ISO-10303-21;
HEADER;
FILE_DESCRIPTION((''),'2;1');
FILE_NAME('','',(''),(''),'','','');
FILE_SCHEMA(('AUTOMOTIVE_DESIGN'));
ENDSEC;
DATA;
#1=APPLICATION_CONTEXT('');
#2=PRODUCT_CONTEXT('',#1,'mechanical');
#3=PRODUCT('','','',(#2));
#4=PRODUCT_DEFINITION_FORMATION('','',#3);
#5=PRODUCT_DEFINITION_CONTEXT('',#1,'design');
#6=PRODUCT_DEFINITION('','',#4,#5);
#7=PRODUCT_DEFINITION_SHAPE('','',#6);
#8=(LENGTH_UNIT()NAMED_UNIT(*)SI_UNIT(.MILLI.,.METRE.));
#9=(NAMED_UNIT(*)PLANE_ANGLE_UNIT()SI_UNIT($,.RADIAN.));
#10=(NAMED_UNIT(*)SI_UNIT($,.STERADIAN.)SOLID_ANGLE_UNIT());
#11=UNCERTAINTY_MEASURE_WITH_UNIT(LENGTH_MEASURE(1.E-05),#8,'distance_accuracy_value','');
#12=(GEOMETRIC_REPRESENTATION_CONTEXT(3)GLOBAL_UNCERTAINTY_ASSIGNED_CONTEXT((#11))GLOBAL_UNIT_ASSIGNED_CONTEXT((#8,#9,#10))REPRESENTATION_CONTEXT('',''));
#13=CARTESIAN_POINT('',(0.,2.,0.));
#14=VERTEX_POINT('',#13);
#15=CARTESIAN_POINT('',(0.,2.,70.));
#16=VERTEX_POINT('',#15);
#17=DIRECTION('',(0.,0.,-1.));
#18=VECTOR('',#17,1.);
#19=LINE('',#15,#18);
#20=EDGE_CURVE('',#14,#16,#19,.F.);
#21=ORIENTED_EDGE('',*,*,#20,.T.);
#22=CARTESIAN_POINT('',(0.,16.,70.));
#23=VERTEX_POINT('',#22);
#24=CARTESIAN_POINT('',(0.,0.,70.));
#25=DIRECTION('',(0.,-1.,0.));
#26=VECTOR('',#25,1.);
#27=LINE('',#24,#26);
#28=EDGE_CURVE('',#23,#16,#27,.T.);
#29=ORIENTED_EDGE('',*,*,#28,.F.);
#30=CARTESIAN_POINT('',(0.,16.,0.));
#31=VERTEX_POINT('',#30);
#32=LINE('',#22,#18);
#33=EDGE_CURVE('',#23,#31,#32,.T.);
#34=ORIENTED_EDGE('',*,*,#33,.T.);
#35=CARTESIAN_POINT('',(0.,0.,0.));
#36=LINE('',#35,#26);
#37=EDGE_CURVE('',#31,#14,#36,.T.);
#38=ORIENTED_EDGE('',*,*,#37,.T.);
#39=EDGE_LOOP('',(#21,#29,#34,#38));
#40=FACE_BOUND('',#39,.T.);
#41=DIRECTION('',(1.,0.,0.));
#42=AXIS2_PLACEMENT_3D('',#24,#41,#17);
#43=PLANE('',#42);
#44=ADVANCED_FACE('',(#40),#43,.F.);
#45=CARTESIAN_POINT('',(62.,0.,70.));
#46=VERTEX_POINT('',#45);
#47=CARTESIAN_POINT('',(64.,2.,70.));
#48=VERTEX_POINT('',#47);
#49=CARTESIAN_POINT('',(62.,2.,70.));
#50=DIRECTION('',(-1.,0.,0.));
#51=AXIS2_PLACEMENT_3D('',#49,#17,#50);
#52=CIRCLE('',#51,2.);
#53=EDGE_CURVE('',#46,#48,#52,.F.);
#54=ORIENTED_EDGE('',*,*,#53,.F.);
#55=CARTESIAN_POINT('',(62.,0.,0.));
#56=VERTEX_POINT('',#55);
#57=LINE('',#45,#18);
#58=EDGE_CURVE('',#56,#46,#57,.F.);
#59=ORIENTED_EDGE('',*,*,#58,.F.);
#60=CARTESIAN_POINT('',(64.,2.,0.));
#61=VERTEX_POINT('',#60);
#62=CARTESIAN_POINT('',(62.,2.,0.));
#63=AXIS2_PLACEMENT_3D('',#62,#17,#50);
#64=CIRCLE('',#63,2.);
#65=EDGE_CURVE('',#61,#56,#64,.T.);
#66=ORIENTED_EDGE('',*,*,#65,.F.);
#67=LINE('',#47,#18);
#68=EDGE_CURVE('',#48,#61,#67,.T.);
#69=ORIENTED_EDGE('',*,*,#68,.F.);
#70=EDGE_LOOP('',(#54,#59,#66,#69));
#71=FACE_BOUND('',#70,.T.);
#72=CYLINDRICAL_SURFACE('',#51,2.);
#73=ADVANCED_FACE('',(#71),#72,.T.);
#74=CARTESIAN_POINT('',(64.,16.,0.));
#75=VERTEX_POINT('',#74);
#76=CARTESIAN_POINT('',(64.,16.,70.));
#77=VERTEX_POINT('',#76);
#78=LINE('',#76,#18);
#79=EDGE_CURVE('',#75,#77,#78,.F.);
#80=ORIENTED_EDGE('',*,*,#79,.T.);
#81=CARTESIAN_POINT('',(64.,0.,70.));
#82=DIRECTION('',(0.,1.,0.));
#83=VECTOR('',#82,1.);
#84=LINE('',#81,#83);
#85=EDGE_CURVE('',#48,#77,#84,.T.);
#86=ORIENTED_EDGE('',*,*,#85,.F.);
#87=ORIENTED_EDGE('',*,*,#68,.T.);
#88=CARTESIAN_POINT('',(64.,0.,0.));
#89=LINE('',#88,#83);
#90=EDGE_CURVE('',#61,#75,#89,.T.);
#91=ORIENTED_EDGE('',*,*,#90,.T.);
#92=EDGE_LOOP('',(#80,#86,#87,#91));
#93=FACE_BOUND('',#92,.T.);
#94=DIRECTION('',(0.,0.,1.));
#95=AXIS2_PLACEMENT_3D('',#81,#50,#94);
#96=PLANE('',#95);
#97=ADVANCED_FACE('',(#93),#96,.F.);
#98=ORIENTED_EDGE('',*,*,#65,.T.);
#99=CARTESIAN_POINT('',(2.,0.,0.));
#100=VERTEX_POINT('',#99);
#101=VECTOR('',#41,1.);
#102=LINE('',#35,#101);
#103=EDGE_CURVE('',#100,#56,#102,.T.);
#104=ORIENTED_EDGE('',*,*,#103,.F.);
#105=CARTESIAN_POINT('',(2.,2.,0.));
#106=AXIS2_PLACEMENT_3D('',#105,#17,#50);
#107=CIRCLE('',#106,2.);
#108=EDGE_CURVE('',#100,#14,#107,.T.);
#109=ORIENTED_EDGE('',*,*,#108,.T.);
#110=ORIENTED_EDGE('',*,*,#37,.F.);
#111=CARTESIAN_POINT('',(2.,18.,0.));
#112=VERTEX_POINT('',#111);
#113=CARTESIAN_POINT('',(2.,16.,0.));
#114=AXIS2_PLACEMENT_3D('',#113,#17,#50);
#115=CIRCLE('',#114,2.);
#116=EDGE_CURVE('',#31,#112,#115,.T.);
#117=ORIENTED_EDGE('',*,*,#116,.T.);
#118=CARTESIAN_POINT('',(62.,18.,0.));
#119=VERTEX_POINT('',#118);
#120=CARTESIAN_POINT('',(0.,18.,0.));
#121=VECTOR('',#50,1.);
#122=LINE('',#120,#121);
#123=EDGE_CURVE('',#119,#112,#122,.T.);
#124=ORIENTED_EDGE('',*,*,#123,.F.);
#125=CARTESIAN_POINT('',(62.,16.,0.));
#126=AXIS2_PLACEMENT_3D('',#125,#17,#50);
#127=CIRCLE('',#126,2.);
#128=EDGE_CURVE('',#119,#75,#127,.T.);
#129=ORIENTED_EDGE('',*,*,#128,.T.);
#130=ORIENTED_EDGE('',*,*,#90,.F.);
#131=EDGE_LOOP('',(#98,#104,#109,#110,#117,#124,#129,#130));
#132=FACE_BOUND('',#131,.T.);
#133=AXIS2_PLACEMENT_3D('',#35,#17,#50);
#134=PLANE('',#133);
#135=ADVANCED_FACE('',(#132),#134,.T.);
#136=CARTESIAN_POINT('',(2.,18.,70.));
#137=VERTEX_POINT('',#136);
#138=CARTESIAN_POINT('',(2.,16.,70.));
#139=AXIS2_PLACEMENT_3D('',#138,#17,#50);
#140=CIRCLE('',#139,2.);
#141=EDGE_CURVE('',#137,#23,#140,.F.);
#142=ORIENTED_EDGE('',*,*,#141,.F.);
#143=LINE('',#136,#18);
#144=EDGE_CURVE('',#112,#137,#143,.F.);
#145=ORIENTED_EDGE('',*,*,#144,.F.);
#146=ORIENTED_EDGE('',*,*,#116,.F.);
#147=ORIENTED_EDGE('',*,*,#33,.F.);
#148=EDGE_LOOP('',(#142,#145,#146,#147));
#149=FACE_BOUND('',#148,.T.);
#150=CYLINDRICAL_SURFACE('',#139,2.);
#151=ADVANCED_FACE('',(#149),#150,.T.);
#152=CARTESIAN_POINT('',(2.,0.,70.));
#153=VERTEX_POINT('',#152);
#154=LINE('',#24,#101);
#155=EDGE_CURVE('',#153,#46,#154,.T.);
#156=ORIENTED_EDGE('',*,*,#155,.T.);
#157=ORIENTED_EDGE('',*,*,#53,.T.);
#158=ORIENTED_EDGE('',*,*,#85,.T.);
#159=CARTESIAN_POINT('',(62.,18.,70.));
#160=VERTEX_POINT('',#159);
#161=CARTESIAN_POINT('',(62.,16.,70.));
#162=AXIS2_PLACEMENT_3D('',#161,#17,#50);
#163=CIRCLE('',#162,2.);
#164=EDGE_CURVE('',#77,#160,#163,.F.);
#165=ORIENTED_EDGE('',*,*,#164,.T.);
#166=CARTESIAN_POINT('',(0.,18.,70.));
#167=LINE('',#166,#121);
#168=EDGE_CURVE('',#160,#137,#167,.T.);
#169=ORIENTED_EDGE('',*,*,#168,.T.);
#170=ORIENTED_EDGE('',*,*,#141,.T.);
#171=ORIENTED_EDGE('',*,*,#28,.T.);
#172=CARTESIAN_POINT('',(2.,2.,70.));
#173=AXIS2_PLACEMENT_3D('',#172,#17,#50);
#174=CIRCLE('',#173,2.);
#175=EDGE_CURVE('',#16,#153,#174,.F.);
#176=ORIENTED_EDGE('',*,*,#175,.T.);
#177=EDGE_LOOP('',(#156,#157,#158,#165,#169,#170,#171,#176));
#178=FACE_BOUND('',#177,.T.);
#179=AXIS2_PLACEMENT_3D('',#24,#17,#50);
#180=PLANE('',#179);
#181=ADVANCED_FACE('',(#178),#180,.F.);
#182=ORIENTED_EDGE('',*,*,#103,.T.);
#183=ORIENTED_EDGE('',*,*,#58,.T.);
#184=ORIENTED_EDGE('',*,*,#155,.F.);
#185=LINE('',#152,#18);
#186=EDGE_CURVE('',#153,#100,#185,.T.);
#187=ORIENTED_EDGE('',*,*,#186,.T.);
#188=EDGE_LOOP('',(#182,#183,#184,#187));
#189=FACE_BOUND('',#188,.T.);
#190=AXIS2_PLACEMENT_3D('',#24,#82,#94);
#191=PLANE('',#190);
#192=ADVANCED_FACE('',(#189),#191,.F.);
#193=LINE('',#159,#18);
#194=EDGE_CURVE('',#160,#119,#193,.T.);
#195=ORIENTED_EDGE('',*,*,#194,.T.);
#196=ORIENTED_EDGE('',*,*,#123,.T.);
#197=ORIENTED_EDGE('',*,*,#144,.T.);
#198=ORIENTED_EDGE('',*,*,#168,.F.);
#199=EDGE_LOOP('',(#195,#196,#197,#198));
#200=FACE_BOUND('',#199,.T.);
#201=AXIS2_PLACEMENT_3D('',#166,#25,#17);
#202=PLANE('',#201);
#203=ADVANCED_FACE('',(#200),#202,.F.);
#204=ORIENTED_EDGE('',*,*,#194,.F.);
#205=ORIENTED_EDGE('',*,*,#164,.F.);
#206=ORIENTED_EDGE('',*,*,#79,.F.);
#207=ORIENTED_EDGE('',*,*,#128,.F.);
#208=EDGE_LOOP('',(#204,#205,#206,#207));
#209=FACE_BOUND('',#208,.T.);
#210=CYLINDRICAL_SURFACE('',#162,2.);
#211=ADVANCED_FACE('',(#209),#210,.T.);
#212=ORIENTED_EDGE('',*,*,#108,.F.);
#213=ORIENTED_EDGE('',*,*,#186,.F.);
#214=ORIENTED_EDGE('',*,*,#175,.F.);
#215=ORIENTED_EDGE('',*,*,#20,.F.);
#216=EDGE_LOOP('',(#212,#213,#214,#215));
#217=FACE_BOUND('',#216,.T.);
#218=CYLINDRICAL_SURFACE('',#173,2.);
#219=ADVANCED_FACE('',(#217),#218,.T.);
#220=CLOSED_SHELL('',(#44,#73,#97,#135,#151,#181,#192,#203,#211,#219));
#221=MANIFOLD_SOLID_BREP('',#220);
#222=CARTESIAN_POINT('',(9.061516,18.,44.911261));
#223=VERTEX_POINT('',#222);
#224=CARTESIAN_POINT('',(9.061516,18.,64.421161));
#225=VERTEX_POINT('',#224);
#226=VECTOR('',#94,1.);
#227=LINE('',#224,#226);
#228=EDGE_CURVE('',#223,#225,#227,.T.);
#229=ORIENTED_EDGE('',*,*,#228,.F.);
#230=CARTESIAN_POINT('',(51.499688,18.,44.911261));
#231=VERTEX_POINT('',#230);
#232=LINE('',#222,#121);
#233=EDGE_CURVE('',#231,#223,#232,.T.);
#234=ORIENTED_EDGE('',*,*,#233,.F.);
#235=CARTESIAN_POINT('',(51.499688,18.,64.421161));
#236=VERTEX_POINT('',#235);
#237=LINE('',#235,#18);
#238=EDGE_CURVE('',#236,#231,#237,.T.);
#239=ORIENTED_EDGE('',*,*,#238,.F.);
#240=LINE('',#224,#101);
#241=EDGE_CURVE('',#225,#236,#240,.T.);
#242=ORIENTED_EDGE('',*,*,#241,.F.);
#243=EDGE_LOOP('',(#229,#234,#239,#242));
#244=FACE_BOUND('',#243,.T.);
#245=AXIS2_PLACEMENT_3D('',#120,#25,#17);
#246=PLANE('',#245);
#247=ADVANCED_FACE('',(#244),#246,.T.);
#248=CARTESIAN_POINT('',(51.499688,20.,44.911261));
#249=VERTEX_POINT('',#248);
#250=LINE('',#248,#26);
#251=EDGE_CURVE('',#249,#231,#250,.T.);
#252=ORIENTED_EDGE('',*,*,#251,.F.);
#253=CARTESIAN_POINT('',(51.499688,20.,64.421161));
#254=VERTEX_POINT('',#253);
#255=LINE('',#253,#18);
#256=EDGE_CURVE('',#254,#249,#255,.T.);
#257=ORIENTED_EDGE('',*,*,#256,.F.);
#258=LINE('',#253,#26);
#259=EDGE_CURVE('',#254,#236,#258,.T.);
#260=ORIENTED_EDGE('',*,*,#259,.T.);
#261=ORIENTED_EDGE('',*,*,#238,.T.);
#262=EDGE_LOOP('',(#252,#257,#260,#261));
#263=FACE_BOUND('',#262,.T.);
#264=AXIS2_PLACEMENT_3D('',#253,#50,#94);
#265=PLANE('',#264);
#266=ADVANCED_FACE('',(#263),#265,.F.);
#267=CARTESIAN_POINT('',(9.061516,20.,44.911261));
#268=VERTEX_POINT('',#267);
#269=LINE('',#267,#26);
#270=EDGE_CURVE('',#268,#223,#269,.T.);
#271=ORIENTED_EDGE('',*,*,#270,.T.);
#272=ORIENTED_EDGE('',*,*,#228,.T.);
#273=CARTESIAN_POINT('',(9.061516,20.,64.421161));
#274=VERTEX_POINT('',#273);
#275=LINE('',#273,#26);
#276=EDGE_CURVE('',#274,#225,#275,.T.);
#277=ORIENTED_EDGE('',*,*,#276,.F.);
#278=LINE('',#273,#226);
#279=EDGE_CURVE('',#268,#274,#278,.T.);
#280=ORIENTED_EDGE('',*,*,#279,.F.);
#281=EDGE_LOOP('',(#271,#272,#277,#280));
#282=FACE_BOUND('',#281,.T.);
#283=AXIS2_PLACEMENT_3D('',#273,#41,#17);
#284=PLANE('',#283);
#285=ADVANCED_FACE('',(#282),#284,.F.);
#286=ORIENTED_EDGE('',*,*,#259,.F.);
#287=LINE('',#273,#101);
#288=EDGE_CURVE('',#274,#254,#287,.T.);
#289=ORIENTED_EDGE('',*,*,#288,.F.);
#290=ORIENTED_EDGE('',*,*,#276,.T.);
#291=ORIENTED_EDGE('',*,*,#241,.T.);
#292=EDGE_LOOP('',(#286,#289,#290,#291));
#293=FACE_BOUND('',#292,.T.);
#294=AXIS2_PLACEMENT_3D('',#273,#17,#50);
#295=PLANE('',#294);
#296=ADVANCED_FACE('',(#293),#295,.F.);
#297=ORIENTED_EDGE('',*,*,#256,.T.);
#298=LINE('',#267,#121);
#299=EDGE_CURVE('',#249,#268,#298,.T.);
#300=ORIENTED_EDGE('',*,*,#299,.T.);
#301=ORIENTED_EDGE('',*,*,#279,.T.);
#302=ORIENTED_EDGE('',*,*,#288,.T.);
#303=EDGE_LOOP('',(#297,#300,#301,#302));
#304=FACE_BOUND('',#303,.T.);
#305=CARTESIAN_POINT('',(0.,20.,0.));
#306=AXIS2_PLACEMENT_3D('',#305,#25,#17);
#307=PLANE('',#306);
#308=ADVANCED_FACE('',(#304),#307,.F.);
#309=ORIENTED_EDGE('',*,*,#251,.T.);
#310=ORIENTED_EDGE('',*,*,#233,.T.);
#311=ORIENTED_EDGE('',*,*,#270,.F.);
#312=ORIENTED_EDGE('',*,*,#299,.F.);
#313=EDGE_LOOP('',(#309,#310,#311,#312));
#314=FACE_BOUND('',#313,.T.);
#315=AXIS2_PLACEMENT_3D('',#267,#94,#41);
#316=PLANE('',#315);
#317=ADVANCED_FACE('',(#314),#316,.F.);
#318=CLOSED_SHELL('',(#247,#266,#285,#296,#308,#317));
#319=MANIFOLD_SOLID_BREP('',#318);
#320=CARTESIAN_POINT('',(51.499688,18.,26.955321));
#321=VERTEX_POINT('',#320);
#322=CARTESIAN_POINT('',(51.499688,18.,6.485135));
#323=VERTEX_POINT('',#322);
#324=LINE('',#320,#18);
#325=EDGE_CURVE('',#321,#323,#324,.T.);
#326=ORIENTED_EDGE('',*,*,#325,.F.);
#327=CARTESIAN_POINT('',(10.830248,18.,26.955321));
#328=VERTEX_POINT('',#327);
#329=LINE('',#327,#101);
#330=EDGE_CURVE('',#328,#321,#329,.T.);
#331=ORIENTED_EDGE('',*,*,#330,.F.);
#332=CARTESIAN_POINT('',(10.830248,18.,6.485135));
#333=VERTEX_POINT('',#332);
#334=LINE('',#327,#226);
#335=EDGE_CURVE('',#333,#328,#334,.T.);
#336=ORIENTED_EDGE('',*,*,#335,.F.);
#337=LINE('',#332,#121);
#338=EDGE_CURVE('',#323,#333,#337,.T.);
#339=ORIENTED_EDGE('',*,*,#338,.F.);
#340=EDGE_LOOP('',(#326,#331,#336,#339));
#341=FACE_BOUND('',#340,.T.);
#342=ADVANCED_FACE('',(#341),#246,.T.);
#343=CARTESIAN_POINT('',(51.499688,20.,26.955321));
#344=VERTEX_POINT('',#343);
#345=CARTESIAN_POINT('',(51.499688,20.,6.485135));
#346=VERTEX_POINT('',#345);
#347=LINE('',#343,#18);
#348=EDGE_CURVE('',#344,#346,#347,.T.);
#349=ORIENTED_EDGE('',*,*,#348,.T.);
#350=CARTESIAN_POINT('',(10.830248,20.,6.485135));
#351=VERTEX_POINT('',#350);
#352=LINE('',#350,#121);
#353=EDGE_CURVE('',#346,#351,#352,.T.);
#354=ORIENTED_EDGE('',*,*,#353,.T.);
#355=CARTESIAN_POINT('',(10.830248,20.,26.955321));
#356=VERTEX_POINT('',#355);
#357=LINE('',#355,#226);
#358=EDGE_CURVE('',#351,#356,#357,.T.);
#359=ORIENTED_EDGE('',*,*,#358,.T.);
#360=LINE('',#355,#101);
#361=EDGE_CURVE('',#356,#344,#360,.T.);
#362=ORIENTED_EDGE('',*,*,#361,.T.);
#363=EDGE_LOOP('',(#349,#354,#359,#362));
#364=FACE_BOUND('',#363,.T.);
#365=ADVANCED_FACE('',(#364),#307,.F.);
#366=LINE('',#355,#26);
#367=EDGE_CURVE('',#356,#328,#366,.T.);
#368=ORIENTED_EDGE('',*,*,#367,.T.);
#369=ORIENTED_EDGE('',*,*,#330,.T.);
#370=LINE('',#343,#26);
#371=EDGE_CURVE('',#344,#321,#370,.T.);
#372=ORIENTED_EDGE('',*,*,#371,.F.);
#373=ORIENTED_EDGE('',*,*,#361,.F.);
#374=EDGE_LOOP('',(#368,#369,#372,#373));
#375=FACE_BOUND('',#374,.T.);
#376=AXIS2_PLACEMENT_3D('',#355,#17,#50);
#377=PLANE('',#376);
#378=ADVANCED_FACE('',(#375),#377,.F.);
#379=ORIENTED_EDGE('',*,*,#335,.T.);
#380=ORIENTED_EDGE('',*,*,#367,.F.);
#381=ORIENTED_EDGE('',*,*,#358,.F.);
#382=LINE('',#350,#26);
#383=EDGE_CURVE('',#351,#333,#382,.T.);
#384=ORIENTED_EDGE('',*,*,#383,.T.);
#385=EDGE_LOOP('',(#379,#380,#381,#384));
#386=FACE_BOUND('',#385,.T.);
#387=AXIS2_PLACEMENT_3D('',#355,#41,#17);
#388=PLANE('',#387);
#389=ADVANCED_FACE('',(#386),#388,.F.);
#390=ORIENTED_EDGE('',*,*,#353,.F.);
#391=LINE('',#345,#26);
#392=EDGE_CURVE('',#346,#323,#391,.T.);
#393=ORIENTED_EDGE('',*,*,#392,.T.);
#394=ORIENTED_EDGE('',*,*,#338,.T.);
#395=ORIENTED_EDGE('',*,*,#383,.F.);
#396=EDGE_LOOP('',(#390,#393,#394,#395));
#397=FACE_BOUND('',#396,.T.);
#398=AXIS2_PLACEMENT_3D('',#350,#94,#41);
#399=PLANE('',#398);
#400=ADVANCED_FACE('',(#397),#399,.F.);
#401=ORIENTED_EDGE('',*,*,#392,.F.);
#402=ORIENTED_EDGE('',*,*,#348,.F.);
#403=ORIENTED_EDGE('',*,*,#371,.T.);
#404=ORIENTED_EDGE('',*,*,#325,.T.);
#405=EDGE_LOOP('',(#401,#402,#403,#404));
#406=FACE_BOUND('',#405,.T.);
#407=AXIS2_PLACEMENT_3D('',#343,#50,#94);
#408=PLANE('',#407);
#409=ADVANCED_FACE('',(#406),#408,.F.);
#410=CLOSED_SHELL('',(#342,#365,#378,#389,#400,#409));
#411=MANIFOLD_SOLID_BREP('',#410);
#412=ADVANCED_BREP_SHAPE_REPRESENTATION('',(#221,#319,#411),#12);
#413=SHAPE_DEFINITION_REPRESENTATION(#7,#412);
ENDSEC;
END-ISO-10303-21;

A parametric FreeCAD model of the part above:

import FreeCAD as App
import Part
import Sketcher


def edges_at(feature, points):
    """Names of the edges that pass closest to the given points."""
    edges = feature.Shape.Edges
    near = lambda p: min(range(len(edges)), key=lambda i: edges[i].distToShape(Part.Vertex(*p))[0])
    return sorted({f"Edge{near(p) + 1}" for p in points})


def add_polygon(sketch, points):
    """Adds a closed chain of lines whose ends are joined by coincident constraints."""
    first, n = sketch.GeometryCount, len(points)
    for a, b in zip(points, points[1:] + points[:1]):
        sketch.addGeometry(Part.LineSegment(App.Vector(*a, 0), App.Vector(*b, 0)), False)
    for i in range(n):
        sketch.addConstraint(Sketcher.Constraint("Coincident", first + i, 2, first + (i + 1) % n, 1))

doc = App.newDocument("Part")
body = doc.addObject("PartDesign::Body", "Body")

# Sketch on XY plane
sketch1 = body.newObject("Sketcher::SketchObject", "Sketch")
sketch1.AttachmentSupport = (doc.getObject("XY_Plane"), [""])
sketch1.MapMode = "FlatFace"
add_polygon(sketch1, [(0, 18), (0, 0), (64, 0), (64, 18)])  # lines 0-3
sketch1.addConstraint([
    Sketcher.Constraint("Vertical", 0),
    Sketcher.Constraint("Horizontal", 1),
    Sketcher.Constraint("Vertical", 2),
    Sketcher.Constraint("Horizontal", 3),
    Sketcher.Constraint("Coincident", 0, 2, -1, 1),
    Sketcher.Constraint("DistanceX", 1, 1, 1, 2, 64.0),
    Sketcher.Constraint("DistanceY", 0, 2, 0, 1, 18.0),
])
pad1 = body.newObject("PartDesign::Pad", "Pad")
pad1.Profile = sketch1
pad1.Length = 70
doc.recompute()

fillet = body.newObject("PartDesign::Fillet", "Fillet")
fillet.Base = (pad1, edges_at(pad1, [
    (0, 18, 35),
    (64, 18, 35),
    (64, 0, 35),
    (0, 0, 35),
]))
fillet.Radius = 2
body2 = doc.addObject("PartDesign::Body", "Body001")

# Sketch on XZ plane
sketch2 = body2.newObject("Sketcher::SketchObject", "Sketch001")
sketch2.AttachmentSupport = (doc.getObject("XZ_Plane001"), [""])
sketch2.MapMode = "FlatFace"
sketch2.AttachmentOffset = App.Placement(App.Vector(0, 0, -18), App.Rotation())
add_polygon(sketch2, [(9, 45), (9, 64), (51, 64), (51, 45)])  # lines 0-3
sketch2.addConstraint([
    Sketcher.Constraint("Vertical", 0),
    Sketcher.Constraint("Horizontal", 1),
    Sketcher.Constraint("Vertical", 2),
    Sketcher.Constraint("Horizontal", 3),
    Sketcher.Constraint("DistanceY", 0, 1, 0, 2, 19.5099),
    Sketcher.Constraint("DistanceX", 1, 1, 1, 2, 42.438172),
    Sketcher.Constraint("DistanceY", -1, 1, 0, 2, 64.421161),
    Sketcher.Constraint("DistanceX", -1, 1, 0, 2, 9.061516),
])
pad2 = body2.newObject("PartDesign::Pad", "Pad001")
pad2.Profile = sketch2
pad2.Length = 2
pad2.Reversed = True
body3 = doc.addObject("PartDesign::Body", "Body002")

# Sketch on XZ plane
sketch3 = body3.newObject("Sketcher::SketchObject", "Sketch002")
sketch3.AttachmentSupport = (doc.getObject("XZ_Plane002"), [""])
sketch3.MapMode = "FlatFace"
sketch3.AttachmentOffset = App.Placement(App.Vector(0, 0, -18), App.Rotation())
add_polygon(sketch3, [(11, 6), (11, 27), (51, 27), (51, 6)])  # lines 0-3
sketch3.addConstraint([
    Sketcher.Constraint("Vertical", 0),
    Sketcher.Constraint("Horizontal", 1),
    Sketcher.Constraint("Vertical", 2),
    Sketcher.Constraint("Horizontal", 3),
    Sketcher.Constraint("DistanceX", 1, 1, 1, 2, 40.66944),
    Sketcher.Constraint("DistanceY", 0, 1, 0, 2, 20.470186),
    Sketcher.Constraint("DistanceX", -1, 1, 0, 2, 10.830248),
    Sketcher.Constraint("DistanceY", -1, 1, 0, 2, 26.955321),
])
pad3 = body3.newObject("PartDesign::Pad", "Pad002")
pad3.Profile = sketch3
pad3.Length = 2
pad3.Reversed = True

doc.recompute()
